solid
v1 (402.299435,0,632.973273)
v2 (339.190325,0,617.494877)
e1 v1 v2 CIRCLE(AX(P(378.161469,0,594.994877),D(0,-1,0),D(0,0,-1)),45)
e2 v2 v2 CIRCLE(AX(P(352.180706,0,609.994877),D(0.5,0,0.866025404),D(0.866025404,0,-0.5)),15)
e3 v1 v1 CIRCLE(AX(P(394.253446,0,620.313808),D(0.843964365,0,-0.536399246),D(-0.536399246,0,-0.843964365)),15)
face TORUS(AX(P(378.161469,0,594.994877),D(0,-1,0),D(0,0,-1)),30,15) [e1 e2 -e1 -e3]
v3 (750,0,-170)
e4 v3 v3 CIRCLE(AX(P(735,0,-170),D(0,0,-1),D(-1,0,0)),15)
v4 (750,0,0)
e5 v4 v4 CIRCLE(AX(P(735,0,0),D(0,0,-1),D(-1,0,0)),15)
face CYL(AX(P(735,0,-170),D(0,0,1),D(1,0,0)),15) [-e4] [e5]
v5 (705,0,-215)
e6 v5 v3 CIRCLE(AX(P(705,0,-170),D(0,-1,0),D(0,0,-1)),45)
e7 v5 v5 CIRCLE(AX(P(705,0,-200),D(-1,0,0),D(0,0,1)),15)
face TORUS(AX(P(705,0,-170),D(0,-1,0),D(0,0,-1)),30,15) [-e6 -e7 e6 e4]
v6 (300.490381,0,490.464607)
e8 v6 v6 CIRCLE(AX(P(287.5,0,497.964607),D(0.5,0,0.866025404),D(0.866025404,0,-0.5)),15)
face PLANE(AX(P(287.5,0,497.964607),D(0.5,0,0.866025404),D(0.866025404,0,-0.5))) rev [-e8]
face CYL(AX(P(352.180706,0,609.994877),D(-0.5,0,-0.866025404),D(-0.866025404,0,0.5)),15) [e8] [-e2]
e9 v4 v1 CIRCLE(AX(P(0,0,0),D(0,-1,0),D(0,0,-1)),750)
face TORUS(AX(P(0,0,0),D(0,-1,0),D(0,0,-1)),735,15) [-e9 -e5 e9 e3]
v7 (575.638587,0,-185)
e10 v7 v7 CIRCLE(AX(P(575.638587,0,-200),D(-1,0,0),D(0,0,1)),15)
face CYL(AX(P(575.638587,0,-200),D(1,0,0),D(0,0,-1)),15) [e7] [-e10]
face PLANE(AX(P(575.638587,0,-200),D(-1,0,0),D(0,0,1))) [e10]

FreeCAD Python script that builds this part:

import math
import FreeCAD as App
import Part
import Sketcher
from FreeCAD import Vector
Q = App.Units.Quantity

doc = App.newDocument("Part")
body = doc.addObject("PartDesign::Body", "Body")

# Sketch on YZ plane
sketch1 = body.newObject("Sketcher::SketchObject", "Sketch")
sketch1.AttachmentSupport = (doc.getObject("YZ_Plane"), [""])
sketch1.MapMode = "FlatFace"
sketch1.AttachmentOffset = App.Placement(Vector(0, 0, 575.638587), App.Rotation())
sketch1.addGeometry(Part.Circle(Vector(0, -200, 0), Vector(0, 0, 1), 15), False)
sketch1.addConstraint([
    Sketcher.Constraint("PointOnObject", 0, 3, -2),
    Sketcher.Constraint("Diameter", 0, 30.0),
    Sketcher.Constraint("DistanceY", 0, 3, -1, 1, 200.0),
])

# Sketch on XZ plane
sketch2 = body.newObject("Sketcher::SketchObject", "Sketch001")
sketch2.AttachmentSupport = (doc.getObject("XZ_Plane"), [""])
sketch2.MapMode = "FlatFace"
sketch2.addGeometry([
    Part.LineSegment(Vector(576, -200, 0), Vector(705, -200, 0)),  # 0
    Part.ArcOfCircle(Part.Circle(Vector(705, -170, 0), Vector(0, 0, 1), 30), math.radians(-90), math.radians(0)),  # 1
    Part.LineSegment(Vector(735, -170, 0), Vector(735, 0, 0)),  # 2
    Part.ArcOfCircle(Part.Circle(Vector(0, 0, 0), Vector(0, 0, 1), 735), math.radians(0), math.radians(58)),  # 3
    Part.ArcOfCircle(Part.Circle(Vector(378, 595, 0), Vector(0, 0, 1), 30), math.radians(58), math.radians(150)),  # 4
    Part.LineSegment(Vector(352, 610, 0), Vector(288, 498, 0)),  # 5
], False)
sketch2.addConstraint([
    Sketcher.Constraint("Tangent", 0, 2, 1, 1),
    Sketcher.Constraint("Tangent", 1, 2, 2, 1),
    Sketcher.Constraint("Tangent", 2, 2, 3, 1),
    Sketcher.Constraint("Tangent", 3, 2, 4, 1),
    Sketcher.Constraint("Tangent", 4, 2, 5, 1),
    Sketcher.Constraint("Horizontal", 0),
    Sketcher.Constraint("Vertical", 2),
    Sketcher.Constraint("Coincident", 3, 3, -1, 1),
    Sketcher.Constraint("Equal", 1, 4),
    Sketcher.Constraint("Radius", 1, 30.0),
    Sketcher.Constraint("Radius", 3, 735.0),
    Sketcher.Constraint("DistanceY", 2, 1, 2, 2, 170.0),
    Sketcher.Constraint("Angle", 5, Q("-120 deg")),
    Sketcher.Constraint("DistanceX", -1, 1, 5, 2, 287.5),
    Sketcher.Constraint("DistanceX", 0, 1, 0, 2, 129.361413),
    Sketcher.Constraint("DistanceX", -1, 1, 4, 3, 378.161469),
])
doc.recompute()

additivepipe = body.newObject("PartDesign::AdditivePipe", "AdditivePipe")
additivepipe.Profile = sketch1
additivepipe.Spine = (sketch2, ["Edge1", "Edge2", "Edge3", "Edge4", "Edge5", "Edge6"])

doc.recompute()
